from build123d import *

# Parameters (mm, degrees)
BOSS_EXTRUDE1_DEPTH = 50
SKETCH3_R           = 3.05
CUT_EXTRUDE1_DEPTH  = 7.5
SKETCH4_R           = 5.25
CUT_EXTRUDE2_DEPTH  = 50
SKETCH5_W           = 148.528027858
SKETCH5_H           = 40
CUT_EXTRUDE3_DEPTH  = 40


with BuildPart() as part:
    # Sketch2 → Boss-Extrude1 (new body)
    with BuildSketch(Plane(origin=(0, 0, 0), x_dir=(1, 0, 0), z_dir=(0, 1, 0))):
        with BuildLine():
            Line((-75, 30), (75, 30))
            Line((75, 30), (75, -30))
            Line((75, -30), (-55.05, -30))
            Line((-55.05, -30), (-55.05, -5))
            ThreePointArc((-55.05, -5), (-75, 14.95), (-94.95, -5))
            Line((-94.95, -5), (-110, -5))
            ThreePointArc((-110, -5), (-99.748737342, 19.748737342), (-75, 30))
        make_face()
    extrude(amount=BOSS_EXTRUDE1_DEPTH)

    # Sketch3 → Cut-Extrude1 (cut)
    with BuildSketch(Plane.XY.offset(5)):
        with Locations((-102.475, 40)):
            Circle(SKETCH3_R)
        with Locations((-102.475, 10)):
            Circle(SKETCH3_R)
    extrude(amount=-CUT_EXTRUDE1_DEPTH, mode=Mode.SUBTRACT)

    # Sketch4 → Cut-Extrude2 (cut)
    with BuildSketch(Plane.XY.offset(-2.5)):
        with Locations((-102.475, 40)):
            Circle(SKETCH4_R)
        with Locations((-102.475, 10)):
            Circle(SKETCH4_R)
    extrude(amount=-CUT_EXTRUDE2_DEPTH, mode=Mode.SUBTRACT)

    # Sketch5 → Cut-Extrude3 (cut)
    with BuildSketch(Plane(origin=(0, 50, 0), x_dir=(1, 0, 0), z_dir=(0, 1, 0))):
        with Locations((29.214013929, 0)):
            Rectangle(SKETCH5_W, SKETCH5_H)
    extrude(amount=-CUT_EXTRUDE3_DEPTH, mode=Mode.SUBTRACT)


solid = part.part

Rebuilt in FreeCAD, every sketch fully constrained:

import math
import FreeCAD as App
import Part
import Sketcher
Q = App.Units.Quantity


def add_polygon(sketch, points):
    """Adds a closed chain of lines whose ends are joined by coincident constraints."""
    first, n = sketch.GeometryCount, len(points)
    for a, b in zip(points, points[1:] + points[:1]):
        sketch.addGeometry(Part.LineSegment(App.Vector(*a, 0), App.Vector(*b, 0)), False)
    for i in range(n):
        sketch.addConstraint(Sketcher.Constraint("Coincident", first + i, 2, first + (i + 1) % n, 1))

doc = App.newDocument("Part")
body = doc.addObject("PartDesign::Body", "Body")

sketch1 = body.newObject("Sketcher::SketchObject", "Sketch")
sketch1.AttachmentSupport = (doc.getObject("XZ_Plane"), [""])
sketch1.MapMode = "FlatFace"
sketch1.addGeometry([
    Part.LineSegment(App.Vector(75, -30, 0), App.Vector(-75, -30, 0)),
    Part.ArcOfCircle(Part.Circle(App.Vector(-75, 5, 0), App.Vector(0, 0, 1), 35), math.radians(180), math.radians(270)),
    Part.LineSegment(App.Vector(-110, 5, 0), App.Vector(-95, 5, 0)),
    Part.ArcOfCircle(Part.Circle(App.Vector(-75, 5, 0), App.Vector(0, 0, 1), 20), math.radians(180), math.radians(360)),
    Part.LineSegment(App.Vector(-55, 5, 0), App.Vector(-55, 30, 0)),
    Part.LineSegment(App.Vector(-55, 30, 0), App.Vector(75, 30, 0)),
    Part.LineSegment(App.Vector(75, 30, 0), App.Vector(75, -30, 0)),
], False)
sketch1.addConstraint([
    Sketcher.Constraint("Tangent", 0, 2, 1, 2),
    Sketcher.Constraint("Coincident", 1, 1, 2, 1),
    Sketcher.Constraint("Coincident", 2, 2, 3, 1),
    Sketcher.Constraint("Tangent", 3, 2, 4, 1),
    Sketcher.Constraint("Coincident", 4, 2, 5, 1),
    Sketcher.Constraint("Coincident", 5, 2, 6, 1),
    Sketcher.Constraint("Coincident", 6, 2, 0, 1),
    Sketcher.Constraint("Horizontal", 0),
    Sketcher.Constraint("Horizontal", 2),
    Sketcher.Constraint("Vertical", 4),
    Sketcher.Constraint("Horizontal", 5),
    Sketcher.Constraint("Vertical", 6),
    Sketcher.Constraint("Coincident", 3, 3, 1, 3),
    Sketcher.Constraint("Symmetric", 0, 2, 5, 2, -1, 1),
    Sketcher.Constraint("Horizontal", 3, 3, 1, 1),
    Sketcher.Constraint("Radius", 1, Q("35 mm")),
    Sketcher.Constraint("DistanceX", 0, 2, 0, 1, Q("150 mm")),
    Sketcher.Constraint("DistanceY", 4, 1, 4, 2, Q("25 mm")),
    Sketcher.Constraint("Radius", 3, Q("19.95 mm")),
])
pad1 = body.newObject("PartDesign::Pad", "Pad")
pad1.Profile = sketch1
pad1.Length = 50
pad1.Reversed = True

sketch2 = body.newObject("Sketcher::SketchObject", "Sketch001")
sketch2.AttachmentSupport = (doc.getObject("XY_Plane"), [""])
sketch2.MapMode = "FlatFace"
sketch2.AttachmentOffset = App.Placement(App.Vector(0, 0, 5), App.Rotation())
sketch2.addGeometry([
    Part.Circle(App.Vector(-102.5, 40, 0), App.Vector(0, 0, 1), 3),
    Part.Circle(App.Vector(-102.5, 10, 0), App.Vector(0, 0, 1), 3),
], False)
sketch2.addConstraint([
    Sketcher.Constraint("Equal", 0, 1),
    Sketcher.Constraint("Vertical", 0, 3, 1, 3),
    Sketcher.Constraint("Diameter", 0, Q("6.1 mm")),
    Sketcher.Constraint("DistanceY", -1, 1, 0, 3, Q("40 mm")),
    Sketcher.Constraint("DistanceY", -1, 1, 1, 3, Q("10 mm")),
    Sketcher.Constraint("DistanceX", 0, 3, -1, 1, Q("102.475 mm")),
])
pocket1 = body.newObject("PartDesign::Pocket", "Pocket")
pocket1.Profile = sketch2
pocket1.Length = 7.5

sketch3 = body.newObject("Sketcher::SketchObject", "Sketch002")
sketch3.AttachmentSupport = (doc.getObject("XY_Plane"), [""])
sketch3.MapMode = "FlatFace"
sketch3.AttachmentOffset = App.Placement(App.Vector(0, 0, -2.5), App.Rotation())
sketch3.addGeometry([
    Part.Circle(App.Vector(-102, 40, 0), App.Vector(0, 0, 1), 5),
    Part.Circle(App.Vector(-102, 10, 0), App.Vector(0, 0, 1), 5),
], False)
sketch3.addConstraint([
    Sketcher.Constraint("Equal", 0, 1),
    Sketcher.Constraint("Vertical", 0, 3, 1, 3),
    Sketcher.Constraint("Diameter", 0, Q("10.5 mm")),
    Sketcher.Constraint("DistanceY", -1, 1, 0, 3, Q("40 mm")),
    Sketcher.Constraint("DistanceY", -1, 1, 1, 3, Q("10 mm")),
    Sketcher.Constraint("DistanceX", 0, 3, -1, 1, Q("102.475 mm")),
])
pocket2 = body.newObject("PartDesign::Pocket", "Pocket001")
pocket2.Profile = sketch3
pocket2.Length = 50

sketch4 = body.newObject("Sketcher::SketchObject", "Sketch003")
sketch4.AttachmentSupport = (doc.getObject("XZ_Plane"), [""])
sketch4.MapMode = "FlatFace"
sketch4.AttachmentOffset = App.Placement(App.Vector(0, 0, -50), App.Rotation())
add_polygon(sketch4, [(-45, -20), (-45, 20), (103, 20), (103, -20)])
sketch4.addConstraint([
    Sketcher.Constraint("Vertical", 0),
    Sketcher.Constraint("Horizontal", 1),
    Sketcher.Constraint("Vertical", 2),
    Sketcher.Constraint("Horizontal", 3),
    Sketcher.Constraint("DistanceY", 0, 1, 0, 2, Q("40 mm")),
    Sketcher.Constraint("DistanceY", -1, 1, 0, 2, Q("20 mm")),
    Sketcher.Constraint("DistanceX", 0, 2, -1, 1, Q("45.05 mm")),
    Sketcher.Constraint("DistanceX", 1, 1, 1, 2, Q("148.528028 mm")),
])
pocket3 = body.newObject("PartDesign::Pocket", "Pocket002")
pocket3.Profile = sketch4
pocket3.Length = 40
pocket3.Reversed = True

doc.recompute()
